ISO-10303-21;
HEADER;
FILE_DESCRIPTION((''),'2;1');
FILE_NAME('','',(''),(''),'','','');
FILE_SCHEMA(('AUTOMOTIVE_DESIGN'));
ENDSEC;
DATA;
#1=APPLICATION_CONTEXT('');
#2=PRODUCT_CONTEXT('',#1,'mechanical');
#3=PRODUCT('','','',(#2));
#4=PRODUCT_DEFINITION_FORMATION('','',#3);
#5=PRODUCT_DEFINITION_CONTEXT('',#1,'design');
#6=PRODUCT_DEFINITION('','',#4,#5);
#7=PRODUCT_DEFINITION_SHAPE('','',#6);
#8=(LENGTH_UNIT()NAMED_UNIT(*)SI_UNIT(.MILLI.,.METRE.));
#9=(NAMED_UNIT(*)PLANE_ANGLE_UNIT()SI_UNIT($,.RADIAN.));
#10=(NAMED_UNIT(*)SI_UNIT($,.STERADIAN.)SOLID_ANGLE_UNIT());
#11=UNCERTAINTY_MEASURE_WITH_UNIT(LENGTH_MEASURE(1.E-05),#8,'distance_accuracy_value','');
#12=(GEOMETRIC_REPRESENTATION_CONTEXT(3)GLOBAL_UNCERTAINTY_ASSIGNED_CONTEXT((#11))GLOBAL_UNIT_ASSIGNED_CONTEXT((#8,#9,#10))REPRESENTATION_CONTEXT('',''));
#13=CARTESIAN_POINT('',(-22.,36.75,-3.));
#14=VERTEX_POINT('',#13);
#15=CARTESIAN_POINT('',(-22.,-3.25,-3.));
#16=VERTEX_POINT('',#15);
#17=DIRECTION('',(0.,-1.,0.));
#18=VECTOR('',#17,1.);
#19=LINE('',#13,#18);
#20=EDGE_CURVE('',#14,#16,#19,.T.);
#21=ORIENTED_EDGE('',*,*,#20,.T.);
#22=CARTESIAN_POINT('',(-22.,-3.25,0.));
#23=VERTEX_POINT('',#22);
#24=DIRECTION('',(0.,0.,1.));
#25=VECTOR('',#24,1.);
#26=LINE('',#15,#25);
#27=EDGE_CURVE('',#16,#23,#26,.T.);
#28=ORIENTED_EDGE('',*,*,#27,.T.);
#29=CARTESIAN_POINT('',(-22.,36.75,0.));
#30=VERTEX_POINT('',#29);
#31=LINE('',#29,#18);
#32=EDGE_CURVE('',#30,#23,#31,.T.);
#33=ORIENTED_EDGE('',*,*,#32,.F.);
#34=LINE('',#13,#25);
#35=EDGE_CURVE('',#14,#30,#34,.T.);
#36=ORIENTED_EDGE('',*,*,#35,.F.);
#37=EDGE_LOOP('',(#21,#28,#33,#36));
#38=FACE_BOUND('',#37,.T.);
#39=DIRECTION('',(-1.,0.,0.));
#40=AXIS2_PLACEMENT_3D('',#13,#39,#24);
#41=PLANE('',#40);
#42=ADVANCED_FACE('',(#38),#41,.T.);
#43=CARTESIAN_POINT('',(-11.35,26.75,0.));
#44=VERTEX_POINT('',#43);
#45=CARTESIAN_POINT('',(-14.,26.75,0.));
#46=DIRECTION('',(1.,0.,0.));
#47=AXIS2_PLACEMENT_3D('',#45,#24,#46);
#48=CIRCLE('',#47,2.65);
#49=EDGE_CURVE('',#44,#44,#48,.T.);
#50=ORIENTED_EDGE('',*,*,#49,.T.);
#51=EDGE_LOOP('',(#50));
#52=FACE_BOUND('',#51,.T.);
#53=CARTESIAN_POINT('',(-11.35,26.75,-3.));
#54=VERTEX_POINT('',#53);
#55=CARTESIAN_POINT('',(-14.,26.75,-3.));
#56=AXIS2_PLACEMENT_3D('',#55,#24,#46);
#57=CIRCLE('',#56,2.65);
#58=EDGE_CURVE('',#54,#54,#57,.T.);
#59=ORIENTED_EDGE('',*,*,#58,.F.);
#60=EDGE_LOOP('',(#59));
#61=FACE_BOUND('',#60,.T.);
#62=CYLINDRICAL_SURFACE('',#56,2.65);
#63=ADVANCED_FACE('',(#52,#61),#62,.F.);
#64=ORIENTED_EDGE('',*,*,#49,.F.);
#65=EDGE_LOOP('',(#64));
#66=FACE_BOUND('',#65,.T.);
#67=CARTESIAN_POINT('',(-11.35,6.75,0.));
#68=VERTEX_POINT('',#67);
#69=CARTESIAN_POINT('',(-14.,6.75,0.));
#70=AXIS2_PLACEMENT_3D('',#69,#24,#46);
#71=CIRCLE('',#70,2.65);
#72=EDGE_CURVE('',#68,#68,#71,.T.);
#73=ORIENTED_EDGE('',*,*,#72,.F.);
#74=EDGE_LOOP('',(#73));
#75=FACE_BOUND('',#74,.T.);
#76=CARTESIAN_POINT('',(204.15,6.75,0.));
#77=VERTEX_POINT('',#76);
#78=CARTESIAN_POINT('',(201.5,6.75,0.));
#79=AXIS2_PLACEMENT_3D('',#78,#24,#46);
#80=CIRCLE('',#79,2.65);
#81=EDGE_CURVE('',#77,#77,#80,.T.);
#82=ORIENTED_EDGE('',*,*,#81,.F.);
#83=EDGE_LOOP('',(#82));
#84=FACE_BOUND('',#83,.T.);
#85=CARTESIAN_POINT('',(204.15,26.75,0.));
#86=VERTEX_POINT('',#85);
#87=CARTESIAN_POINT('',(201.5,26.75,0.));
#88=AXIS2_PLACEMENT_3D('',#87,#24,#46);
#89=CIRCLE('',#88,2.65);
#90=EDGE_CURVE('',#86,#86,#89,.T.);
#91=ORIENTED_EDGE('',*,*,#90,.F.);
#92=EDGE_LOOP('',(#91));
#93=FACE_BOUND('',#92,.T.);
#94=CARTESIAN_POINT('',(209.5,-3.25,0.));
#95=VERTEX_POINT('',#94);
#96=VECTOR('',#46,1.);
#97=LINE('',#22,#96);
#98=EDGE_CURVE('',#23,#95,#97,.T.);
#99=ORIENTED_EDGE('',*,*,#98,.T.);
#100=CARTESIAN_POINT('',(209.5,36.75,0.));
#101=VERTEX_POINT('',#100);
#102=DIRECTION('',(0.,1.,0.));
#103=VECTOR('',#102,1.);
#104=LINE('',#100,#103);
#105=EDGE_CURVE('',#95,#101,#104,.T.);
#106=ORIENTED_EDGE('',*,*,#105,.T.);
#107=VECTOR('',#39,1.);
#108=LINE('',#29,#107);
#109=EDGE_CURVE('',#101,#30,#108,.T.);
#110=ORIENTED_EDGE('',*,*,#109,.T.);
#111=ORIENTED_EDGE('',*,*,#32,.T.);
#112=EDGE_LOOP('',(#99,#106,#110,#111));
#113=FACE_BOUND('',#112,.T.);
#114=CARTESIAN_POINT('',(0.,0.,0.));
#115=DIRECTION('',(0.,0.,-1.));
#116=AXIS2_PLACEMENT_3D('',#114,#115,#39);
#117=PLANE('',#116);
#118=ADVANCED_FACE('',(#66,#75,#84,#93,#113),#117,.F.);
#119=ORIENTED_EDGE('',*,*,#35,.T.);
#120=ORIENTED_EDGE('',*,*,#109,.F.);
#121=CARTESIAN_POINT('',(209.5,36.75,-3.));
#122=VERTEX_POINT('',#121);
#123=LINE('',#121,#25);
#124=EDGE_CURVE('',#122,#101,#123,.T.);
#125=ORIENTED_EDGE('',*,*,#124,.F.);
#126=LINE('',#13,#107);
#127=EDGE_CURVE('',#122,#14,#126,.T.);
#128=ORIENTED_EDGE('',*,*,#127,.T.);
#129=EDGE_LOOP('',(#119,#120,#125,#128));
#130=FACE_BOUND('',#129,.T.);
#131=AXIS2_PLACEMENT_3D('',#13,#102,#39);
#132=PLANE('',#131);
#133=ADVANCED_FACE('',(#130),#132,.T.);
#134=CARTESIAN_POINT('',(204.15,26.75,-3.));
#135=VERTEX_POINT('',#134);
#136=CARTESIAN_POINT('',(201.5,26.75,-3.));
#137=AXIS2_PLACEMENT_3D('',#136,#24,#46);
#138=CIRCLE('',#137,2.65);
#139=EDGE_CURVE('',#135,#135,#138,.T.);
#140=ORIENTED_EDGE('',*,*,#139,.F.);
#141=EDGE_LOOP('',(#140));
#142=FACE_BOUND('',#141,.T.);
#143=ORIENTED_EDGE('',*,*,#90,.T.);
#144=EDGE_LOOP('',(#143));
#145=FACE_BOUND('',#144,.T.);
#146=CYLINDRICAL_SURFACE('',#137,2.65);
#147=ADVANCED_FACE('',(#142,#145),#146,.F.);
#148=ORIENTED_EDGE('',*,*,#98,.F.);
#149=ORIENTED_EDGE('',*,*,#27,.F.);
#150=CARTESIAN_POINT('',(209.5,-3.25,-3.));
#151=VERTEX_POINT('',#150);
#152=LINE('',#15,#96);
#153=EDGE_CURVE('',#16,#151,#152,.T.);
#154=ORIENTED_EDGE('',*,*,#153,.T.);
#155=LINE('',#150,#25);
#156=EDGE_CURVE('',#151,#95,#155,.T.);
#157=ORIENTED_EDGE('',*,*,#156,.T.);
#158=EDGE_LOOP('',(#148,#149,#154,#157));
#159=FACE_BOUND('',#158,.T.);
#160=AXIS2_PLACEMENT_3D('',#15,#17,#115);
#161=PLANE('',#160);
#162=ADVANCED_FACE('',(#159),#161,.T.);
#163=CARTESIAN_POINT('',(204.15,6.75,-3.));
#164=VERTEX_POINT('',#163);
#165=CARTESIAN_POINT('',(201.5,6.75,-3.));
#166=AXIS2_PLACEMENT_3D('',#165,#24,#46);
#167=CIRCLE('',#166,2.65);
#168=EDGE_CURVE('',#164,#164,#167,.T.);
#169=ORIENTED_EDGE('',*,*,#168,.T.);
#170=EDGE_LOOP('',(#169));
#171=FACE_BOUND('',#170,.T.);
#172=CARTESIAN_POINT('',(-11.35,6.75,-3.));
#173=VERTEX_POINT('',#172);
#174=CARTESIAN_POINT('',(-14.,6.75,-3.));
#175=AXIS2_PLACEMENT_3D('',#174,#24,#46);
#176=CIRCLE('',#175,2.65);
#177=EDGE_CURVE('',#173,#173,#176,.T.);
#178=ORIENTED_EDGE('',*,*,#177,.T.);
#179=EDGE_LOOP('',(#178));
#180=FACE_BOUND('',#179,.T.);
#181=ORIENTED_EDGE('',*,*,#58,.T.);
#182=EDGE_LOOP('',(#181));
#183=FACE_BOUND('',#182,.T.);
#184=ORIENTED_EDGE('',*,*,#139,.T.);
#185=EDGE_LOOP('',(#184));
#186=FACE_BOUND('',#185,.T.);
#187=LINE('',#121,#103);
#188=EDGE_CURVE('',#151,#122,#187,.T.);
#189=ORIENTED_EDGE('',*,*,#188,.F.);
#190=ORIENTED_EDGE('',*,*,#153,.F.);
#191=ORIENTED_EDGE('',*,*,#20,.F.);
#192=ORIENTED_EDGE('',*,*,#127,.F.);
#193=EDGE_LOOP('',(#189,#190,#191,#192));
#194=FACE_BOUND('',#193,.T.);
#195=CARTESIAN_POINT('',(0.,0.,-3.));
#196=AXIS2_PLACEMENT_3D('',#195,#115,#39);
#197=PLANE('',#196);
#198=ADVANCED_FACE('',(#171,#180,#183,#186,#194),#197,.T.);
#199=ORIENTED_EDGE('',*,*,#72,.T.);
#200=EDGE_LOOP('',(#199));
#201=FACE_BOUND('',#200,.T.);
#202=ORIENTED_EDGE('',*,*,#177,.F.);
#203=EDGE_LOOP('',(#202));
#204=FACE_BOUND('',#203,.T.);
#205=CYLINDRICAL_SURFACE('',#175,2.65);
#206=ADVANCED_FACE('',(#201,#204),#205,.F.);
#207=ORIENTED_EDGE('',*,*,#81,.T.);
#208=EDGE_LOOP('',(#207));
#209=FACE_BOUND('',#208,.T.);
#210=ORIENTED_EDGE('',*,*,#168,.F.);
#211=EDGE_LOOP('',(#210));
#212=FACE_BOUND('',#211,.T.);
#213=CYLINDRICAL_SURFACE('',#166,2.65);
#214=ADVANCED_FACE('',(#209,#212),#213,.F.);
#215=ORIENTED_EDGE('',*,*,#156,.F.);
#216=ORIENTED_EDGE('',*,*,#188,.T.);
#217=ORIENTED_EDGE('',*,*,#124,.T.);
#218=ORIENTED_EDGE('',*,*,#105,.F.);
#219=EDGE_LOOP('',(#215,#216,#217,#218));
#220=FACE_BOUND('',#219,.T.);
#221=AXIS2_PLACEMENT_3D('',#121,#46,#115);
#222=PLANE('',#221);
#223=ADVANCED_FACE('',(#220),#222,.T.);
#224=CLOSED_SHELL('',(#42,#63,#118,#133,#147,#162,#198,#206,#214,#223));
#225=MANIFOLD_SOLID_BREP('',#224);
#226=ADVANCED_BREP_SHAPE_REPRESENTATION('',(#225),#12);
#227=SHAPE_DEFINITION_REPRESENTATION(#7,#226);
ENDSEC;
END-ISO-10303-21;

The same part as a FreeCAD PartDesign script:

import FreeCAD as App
import Part
import Sketcher

V = App.Vector

doc = App.newDocument("Part")
body = doc.addObject("PartDesign::Body", "Body")

sketch1 = body.newObject("Sketcher::SketchObject", "Sketch")
sketch1.AttachmentSupport = (doc.getObject("XY_Plane"), [""])
sketch1.MapMode = "FlatFace"
sketch1.addGeometry([
    Part.LineSegment(V(-22, 36.8, 0), V(-22, -3.2, 0)),
    Part.LineSegment(V(-22, -3.2, 0), V(209.5, -3.2, 0)),
    Part.LineSegment(V(209.5, -3.2, 0), V(209.5, 36.8, 0)),
    Part.LineSegment(V(209.5, 36.8, 0), V(-22, 36.8, 0)),
    Part.Circle(V(-14, 6.8, 0), V(0, 0, 1), 2.6),
    Part.Circle(V(201.5, 6.8, 0), V(0, 0, 1), 2.6),
    Part.Circle(V(-14, 26.8, 0), V(0, 0, 1), 2.6),
    Part.Circle(V(201.5, 26.8, 0), V(0, 0, 1), 2.6),
], False)
sketch1.addConstraint([
    Sketcher.Constraint("Coincident", 0, 2, 1, 1),
    Sketcher.Constraint("Coincident", 1, 2, 2, 1),
    Sketcher.Constraint("Coincident", 2, 2, 3, 1),
    Sketcher.Constraint("Coincident", 3, 2, 0, 1),
    Sketcher.Constraint("Vertical", 0),
    Sketcher.Constraint("Horizontal", 1),
    Sketcher.Constraint("Vertical", 2),
    Sketcher.Constraint("Horizontal", 3),
    Sketcher.Constraint("Equal", 4, 5),
    Sketcher.Constraint("Equal", 5, 6),
    Sketcher.Constraint("Equal", 6, 7),
    Sketcher.Constraint("Horizontal", 4, 3, 5, 3),
    Sketcher.Constraint("Horizontal", 6, 3, 7, 3),
    Sketcher.Constraint("Vertical", 4, 3, 6, 3),
    Sketcher.Constraint("Vertical", 5, 3, 7, 3),
    Sketcher.Constraint("Diameter", 4, 5.3),
    Sketcher.Constraint("DistanceY", 0, 2, 0, 1, 40.0),
    Sketcher.Constraint("DistanceX", 1, 1, 1, 2, 231.5),
    Sketcher.Constraint("DistanceX", 4, 3, -1, 1, 14.0),
    Sketcher.Constraint("DistanceX", 0, 2, -1, 1, 22.0),
    Sketcher.Constraint("DistanceY", 4, 3, 6, 3, 20.0),
    Sketcher.Constraint("DistanceY", 0, 2, 4, 3, 10.0),
    Sketcher.Constraint("DistanceX", 5, 3, 1, 2, 8.0),
    Sketcher.Constraint("DistanceY", -1, 1, 4, 3, 6.75),
])
pad1 = body.newObject("PartDesign::Pad", "Pad")
pad1.Profile = sketch1
pad1.Length = 3
pad1.Reversed = True

doc.recompute()
